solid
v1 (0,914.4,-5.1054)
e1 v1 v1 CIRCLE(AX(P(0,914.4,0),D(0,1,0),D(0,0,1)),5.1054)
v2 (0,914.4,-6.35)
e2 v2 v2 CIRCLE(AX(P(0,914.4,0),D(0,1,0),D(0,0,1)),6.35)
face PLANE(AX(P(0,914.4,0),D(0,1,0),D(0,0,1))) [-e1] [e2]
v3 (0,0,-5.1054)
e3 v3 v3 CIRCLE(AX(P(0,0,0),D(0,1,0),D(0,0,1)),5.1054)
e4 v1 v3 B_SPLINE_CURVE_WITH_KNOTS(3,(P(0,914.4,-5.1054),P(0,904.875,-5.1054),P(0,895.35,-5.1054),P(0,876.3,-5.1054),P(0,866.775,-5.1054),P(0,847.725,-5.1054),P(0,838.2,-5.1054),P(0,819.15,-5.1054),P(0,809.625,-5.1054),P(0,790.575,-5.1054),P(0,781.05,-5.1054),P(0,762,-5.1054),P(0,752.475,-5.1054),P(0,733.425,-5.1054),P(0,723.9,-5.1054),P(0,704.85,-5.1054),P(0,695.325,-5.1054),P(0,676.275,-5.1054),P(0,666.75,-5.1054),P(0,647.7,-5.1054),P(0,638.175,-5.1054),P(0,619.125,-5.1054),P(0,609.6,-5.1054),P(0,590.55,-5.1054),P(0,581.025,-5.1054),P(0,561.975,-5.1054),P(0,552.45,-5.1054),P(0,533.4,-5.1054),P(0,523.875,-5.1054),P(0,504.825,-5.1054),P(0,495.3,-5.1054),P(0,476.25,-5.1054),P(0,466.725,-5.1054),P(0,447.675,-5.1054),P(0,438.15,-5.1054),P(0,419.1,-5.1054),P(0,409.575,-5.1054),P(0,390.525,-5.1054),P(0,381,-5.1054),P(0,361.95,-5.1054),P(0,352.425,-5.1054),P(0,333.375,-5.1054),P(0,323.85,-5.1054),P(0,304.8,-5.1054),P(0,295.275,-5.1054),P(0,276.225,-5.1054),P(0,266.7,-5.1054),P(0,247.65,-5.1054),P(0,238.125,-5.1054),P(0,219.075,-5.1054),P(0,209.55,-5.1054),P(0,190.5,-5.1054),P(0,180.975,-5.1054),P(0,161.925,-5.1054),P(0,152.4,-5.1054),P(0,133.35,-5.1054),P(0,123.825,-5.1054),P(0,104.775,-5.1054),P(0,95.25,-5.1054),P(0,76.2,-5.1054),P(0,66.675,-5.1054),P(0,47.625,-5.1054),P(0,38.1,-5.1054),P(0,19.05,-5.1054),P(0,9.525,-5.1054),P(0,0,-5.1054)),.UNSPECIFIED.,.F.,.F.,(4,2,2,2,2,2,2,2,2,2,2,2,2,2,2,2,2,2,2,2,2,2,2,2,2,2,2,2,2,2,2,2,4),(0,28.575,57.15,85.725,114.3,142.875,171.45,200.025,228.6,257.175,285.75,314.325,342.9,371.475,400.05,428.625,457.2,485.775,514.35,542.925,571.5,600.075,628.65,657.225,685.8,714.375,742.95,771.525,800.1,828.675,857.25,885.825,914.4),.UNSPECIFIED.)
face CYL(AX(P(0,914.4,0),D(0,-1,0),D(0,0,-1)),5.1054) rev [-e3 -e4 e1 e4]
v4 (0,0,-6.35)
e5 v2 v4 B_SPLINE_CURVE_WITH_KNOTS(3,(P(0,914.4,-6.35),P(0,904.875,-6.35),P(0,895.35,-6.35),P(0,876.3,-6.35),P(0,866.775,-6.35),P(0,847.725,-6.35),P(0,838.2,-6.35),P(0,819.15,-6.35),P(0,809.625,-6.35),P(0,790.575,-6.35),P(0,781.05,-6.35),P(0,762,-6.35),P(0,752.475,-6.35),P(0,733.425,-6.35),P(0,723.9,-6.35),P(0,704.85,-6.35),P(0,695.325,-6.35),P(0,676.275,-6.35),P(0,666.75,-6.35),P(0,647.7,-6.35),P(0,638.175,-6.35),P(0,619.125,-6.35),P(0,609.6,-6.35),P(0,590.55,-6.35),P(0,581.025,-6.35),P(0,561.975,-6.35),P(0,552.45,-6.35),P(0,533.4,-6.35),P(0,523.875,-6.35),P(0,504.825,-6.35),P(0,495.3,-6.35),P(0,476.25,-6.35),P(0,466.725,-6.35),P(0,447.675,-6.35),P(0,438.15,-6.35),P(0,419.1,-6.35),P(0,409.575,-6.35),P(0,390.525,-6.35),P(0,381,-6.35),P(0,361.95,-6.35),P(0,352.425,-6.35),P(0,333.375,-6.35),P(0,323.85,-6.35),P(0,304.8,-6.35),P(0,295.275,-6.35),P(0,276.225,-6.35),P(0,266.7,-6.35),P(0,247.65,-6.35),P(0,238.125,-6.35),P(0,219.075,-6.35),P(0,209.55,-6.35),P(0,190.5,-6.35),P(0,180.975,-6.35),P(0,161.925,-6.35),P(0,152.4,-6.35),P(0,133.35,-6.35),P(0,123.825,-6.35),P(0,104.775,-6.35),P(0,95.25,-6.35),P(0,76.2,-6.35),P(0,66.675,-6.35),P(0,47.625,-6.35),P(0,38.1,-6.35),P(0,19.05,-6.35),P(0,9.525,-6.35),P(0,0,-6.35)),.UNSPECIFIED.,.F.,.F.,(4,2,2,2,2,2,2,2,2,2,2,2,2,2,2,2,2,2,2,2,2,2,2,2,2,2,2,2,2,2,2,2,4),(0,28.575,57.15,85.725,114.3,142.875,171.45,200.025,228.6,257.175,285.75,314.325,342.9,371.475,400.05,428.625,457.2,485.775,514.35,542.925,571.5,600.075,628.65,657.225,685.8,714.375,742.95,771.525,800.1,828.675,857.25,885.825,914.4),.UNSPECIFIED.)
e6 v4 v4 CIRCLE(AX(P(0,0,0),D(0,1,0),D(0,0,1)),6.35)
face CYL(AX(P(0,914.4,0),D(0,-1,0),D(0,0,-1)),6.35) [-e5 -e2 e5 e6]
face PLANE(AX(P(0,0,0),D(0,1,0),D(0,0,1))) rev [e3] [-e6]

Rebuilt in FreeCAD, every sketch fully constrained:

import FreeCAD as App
import Part
import Sketcher
Q = App.Units.Quantity

doc = App.newDocument("Part")
body = doc.addObject("PartDesign::Body", "Body")

# Sketch on XZ plane
sketch1 = body.newObject("Sketcher::SketchObject", "Sketch")
sketch1.AttachmentSupport = (doc.getObject("XZ_Plane"), [""])
sketch1.MapMode = "FlatFace"
sketch1.addGeometry(Part.Circle(App.Vector(0, 0, 0), App.Vector(0, 0, 1), 6), False)
sketch1.addGeometry(Part.Circle(App.Vector(0, 0, 0), App.Vector(0, 0, 1), 5), False)
sketch1.addConstraint(Sketcher.Constraint("Coincident", 0, 3, -1, 1))
sketch1.addConstraint(Sketcher.Constraint("Coincident", 1, 3, -1, 1))
sketch1.addConstraint(Sketcher.Constraint("Diameter", 0, Q("0.5 in")))
sketch1.addConstraint(Sketcher.Constraint("Diameter", 1, Q("0.402 in")))
pad1 = body.newObject("PartDesign::Pad", "Pad")
pad1.Profile = sketch1
pad1.Length = Q("36 in")
pad1.Reversed = True

doc.recompute()
